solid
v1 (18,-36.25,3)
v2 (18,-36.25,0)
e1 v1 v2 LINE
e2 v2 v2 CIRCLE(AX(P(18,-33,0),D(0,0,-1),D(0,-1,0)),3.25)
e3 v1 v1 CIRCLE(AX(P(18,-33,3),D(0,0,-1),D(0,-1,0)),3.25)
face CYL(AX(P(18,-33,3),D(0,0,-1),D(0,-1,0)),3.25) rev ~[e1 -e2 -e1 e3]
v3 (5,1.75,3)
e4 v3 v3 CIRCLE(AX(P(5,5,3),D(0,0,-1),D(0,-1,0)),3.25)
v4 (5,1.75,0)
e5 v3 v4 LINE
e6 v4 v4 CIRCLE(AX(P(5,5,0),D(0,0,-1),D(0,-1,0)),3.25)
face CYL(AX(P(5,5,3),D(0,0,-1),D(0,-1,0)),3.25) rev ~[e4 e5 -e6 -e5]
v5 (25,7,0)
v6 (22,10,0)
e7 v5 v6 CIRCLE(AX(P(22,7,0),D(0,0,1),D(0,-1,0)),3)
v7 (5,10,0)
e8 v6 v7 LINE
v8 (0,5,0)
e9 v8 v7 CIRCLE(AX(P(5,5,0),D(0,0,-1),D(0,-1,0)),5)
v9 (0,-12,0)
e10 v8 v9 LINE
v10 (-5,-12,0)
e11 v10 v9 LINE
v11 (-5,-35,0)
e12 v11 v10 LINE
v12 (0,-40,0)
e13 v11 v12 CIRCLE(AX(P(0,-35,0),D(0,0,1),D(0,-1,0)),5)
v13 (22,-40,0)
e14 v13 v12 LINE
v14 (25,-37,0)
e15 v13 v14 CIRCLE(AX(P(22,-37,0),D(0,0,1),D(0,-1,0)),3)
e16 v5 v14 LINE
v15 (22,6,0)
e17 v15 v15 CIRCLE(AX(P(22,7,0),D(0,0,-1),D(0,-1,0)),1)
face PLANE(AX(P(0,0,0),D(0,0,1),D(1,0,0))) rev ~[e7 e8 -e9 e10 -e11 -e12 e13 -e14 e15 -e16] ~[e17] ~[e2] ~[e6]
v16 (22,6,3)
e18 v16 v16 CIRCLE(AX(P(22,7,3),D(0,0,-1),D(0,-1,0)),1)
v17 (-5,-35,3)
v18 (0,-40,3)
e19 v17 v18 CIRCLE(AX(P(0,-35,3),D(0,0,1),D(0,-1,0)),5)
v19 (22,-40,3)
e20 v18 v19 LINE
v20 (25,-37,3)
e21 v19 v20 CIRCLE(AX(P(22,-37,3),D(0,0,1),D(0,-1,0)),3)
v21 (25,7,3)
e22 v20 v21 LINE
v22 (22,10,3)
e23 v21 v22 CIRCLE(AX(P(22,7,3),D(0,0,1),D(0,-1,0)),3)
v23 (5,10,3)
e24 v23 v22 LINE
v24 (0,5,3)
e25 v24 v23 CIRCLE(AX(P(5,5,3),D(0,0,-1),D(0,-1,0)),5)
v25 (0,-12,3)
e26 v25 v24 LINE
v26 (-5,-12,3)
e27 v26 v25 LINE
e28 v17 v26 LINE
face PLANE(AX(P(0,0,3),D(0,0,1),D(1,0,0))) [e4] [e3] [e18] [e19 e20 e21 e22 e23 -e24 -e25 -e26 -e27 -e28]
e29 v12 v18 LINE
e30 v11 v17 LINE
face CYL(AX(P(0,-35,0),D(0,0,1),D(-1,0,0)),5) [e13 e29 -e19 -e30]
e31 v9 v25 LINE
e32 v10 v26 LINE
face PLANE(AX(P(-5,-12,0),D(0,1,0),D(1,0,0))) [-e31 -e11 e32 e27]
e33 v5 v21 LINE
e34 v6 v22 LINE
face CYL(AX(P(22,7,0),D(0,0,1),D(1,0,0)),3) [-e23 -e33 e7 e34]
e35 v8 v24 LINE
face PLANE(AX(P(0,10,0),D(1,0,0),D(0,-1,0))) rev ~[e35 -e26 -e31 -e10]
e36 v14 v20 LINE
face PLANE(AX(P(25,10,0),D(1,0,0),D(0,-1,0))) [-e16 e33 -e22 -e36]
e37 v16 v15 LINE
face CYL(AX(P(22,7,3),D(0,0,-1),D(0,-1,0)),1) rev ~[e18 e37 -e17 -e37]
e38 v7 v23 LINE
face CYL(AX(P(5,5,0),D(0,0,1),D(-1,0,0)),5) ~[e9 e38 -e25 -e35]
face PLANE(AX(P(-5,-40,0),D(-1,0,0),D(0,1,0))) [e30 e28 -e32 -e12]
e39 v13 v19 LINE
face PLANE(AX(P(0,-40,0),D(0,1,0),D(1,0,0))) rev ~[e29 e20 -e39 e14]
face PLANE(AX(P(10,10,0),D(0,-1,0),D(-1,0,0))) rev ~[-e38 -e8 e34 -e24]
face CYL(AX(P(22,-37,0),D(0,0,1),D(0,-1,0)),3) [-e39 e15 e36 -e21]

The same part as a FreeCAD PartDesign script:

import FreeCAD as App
import Part
import Sketcher

V = App.Vector


def edges_at(feature, points):
    """Names of the edges that pass closest to the given points."""
    edges = feature.Shape.Edges
    near = lambda p: min(range(len(edges)), key=lambda i: edges[i].distToShape(Part.Vertex(*p))[0])
    return sorted({f"Edge{near(p) + 1}" for p in points})

doc = App.newDocument("Part")
body = doc.addObject("PartDesign::Body", "Body")

# Sketch on XY plane
sketch1 = body.newObject("Sketcher::SketchObject", "Sketch")
sketch1.AttachmentSupport = (doc.getObject("XY_Plane"), [""])
sketch1.MapMode = "FlatFace"
sketch1.addGeometry(Part.LineSegment(V(0, 10, 0), V(0, -12, 0)), False)
sketch1.addGeometry(Part.LineSegment(V(0, -12, 0), V(-5, -12, 0)), False)
sketch1.addGeometry(Part.LineSegment(V(-5, -12, 0), V(-5, -40, 0)), False)
sketch1.addGeometry(Part.LineSegment(V(-5, -40, 0), V(25, -40, 0)), False)
sketch1.addGeometry(Part.LineSegment(V(25, -40, 0), V(25, 10, 0)), False)
sketch1.addGeometry(Part.LineSegment(V(25, 10, 0), V(0, 10, 0)), False)
sketch1.addConstraint(Sketcher.Constraint("Coincident", 0, 2, 1, 1))
sketch1.addConstraint(Sketcher.Constraint("Coincident", 1, 2, 2, 1))
sketch1.addConstraint(Sketcher.Constraint("Coincident", 2, 2, 3, 1))
sketch1.addConstraint(Sketcher.Constraint("Coincident", 3, 2, 4, 1))
sketch1.addConstraint(Sketcher.Constraint("Coincident", 4, 2, 5, 1))
sketch1.addConstraint(Sketcher.Constraint("Coincident", 5, 2, 0, 1))
sketch1.addConstraint(Sketcher.Constraint("Vertical", 0))
sketch1.addConstraint(Sketcher.Constraint("Horizontal", 1))
sketch1.addConstraint(Sketcher.Constraint("Vertical", 2))
sketch1.addConstraint(Sketcher.Constraint("Horizontal", 3))
sketch1.addConstraint(Sketcher.Constraint("Vertical", 4))
sketch1.addConstraint(Sketcher.Constraint("Horizontal", 5))
sketch1.addConstraint(Sketcher.Constraint("PointOnObject", 0, 2, -2))
sketch1.addConstraint(Sketcher.Constraint("DistanceX", 1, 2, 1, 1, 5.0))
sketch1.addConstraint(Sketcher.Constraint("DistanceY", 0, 2, 0, 1, 22.0))
sketch1.addConstraint(Sketcher.Constraint("DistanceY", 2, 2, 2, 1, 28.0))
sketch1.addConstraint(Sketcher.Constraint("DistanceY", -1, 1, 4, 2, 10.0))
sketch1.addConstraint(Sketcher.Constraint("DistanceX", 3, 1, 3, 2, 30.0))
pad1 = body.newObject("PartDesign::Pad", "Pad")
pad1.Profile = sketch1
pad1.Length = 3
doc.recompute()

fillet = body.newObject("PartDesign::Fillet", "Fillet")
fillet.Base = (pad1, edges_at(pad1, [(0, 10, 1.5)]))
fillet.Radius = 5
doc.recompute()

fillet2 = body.newObject("PartDesign::Fillet", "Fillet001")
fillet2.Base = (fillet, edges_at(fillet, [(-5, -40, 1.5)]))
fillet2.Radius = 5

# Sketch on XY plane
sketch2 = body.newObject("Sketcher::SketchObject", "Sketch001")
sketch2.AttachmentSupport = (doc.getObject("XY_Plane"), [""])
sketch2.MapMode = "FlatFace"
sketch2.AttachmentOffset = App.Placement(V(0, 0, 3), App.Rotation())
sketch2.addGeometry(Part.Circle(V(22, 7, 0), V(0, 0, 1), 1), False)
sketch2.addConstraint(Sketcher.Constraint("Diameter", 0, 2.0))
sketch2.addConstraint(Sketcher.Constraint("DistanceX", -1, 1, 0, 3, 22.0))
sketch2.addConstraint(Sketcher.Constraint("DistanceY", -1, 1, 0, 3, 7.0))
doc.recompute()
hole = body.newObject("PartDesign::Hole", "Hole")
hole.Profile = sketch2
hole.ThreadType = "None"
hole.Diameter = 2
hole.DepthType = "ThroughAll"

# Sketch on XY plane
sketch3 = body.newObject("Sketcher::SketchObject", "Sketch002")
sketch3.AttachmentSupport = (doc.getObject("XY_Plane"), [""])
sketch3.MapMode = "FlatFace"
sketch3.AttachmentOffset = App.Placement(V(0, 0, 3), App.Rotation())
sketch3.addGeometry(Part.Circle(V(5, 5, 0), V(0, 0, 1), 3.2), False)
sketch3.addGeometry(Part.Circle(V(18, -33, 0), V(0, 0, 1), 3.2), False)
sketch3.addConstraint(Sketcher.Constraint("Equal", 0, 1))
sketch3.addConstraint(Sketcher.Constraint("Diameter", 0, 6.5))
sketch3.addConstraint(Sketcher.Constraint("DistanceX", -1, 1, 0, 3, 5.0))
sketch3.addConstraint(Sketcher.Constraint("DistanceY", -1, 1, 0, 3, 5.0))
sketch3.addConstraint(Sketcher.Constraint("DistanceX", -1, 1, 1, 3, 18.0))
sketch3.addConstraint(Sketcher.Constraint("DistanceY", 1, 3, -1, 1, 33.0))
doc.recompute()
hole2 = body.newObject("PartDesign::Hole", "Hole001")
hole2.Profile = sketch3
hole2.ThreadType = "None"
hole2.Diameter = 6.5
hole2.DepthType = "ThroughAll"
doc.recompute()

fillet3 = body.newObject("PartDesign::Fillet", "Fillet002")
fillet3.Base = (hole2, edges_at(hole2, [(25, -40, 1.5), (25, 10, 1.5)]))
fillet3.Radius = 3

doc.recompute()
